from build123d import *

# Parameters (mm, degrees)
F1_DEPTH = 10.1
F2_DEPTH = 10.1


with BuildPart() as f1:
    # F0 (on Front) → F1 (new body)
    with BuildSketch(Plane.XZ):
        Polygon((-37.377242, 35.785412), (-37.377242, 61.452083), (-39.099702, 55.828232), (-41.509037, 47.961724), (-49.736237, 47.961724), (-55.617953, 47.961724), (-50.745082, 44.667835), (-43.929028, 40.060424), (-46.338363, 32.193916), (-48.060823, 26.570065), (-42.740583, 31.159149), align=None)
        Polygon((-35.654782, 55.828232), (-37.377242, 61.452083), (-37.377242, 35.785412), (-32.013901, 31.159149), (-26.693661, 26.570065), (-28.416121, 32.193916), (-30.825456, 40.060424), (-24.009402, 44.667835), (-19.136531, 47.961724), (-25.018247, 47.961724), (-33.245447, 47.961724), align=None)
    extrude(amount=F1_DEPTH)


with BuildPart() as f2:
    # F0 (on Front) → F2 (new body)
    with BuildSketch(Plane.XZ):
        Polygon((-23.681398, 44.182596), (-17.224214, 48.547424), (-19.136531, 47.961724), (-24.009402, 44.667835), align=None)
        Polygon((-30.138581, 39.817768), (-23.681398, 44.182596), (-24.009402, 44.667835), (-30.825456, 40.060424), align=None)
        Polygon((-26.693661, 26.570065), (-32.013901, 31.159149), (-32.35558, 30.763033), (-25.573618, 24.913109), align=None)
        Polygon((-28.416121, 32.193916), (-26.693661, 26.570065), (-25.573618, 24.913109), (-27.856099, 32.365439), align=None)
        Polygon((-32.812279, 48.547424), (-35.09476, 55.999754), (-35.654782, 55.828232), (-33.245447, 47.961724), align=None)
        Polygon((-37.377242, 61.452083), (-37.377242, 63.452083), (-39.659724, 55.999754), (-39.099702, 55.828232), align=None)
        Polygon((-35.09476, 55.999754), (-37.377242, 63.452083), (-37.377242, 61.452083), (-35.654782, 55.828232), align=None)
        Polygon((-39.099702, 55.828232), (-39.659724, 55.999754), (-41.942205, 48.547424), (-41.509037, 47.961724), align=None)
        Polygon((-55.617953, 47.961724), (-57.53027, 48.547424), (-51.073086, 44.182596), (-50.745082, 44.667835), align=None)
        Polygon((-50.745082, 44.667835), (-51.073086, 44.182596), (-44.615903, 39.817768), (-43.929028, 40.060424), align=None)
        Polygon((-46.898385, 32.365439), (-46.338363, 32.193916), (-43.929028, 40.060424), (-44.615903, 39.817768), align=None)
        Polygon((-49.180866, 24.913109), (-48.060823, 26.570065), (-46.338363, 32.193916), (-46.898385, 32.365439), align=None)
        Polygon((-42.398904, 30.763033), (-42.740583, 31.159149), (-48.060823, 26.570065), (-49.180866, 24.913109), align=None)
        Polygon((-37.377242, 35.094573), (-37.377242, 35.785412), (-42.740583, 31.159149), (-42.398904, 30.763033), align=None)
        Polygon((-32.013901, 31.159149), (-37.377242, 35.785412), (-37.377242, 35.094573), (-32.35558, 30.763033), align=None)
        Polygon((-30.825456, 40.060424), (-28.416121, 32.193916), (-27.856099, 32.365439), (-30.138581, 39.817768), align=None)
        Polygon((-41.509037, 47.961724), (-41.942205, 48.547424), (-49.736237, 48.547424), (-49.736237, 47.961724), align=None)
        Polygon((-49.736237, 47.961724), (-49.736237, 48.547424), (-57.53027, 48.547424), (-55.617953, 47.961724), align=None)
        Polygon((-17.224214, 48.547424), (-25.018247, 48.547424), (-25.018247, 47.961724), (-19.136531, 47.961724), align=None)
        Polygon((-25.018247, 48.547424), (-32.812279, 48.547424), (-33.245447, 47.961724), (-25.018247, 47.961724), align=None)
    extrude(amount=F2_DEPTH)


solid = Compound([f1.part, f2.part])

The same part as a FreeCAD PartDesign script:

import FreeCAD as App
import Part
import Sketcher
Q = App.Units.Quantity

doc = App.newDocument("Part")
body = doc.addObject("PartDesign::Body", "Body")

sketch1 = body.newObject("Sketcher::SketchObject", "Sketch")
sketch1.AttachmentSupport = (doc.getObject("XZ_Plane"), [""])
sketch1.MapMode = "FlatFace"
sketch1.addGeometry([
    Part.LineSegment(App.Vector(-37, 61, 0), App.Vector(-39, 56, 0)),
    Part.LineSegment(App.Vector(-39, 56, 0), App.Vector(-42, 48, 0)),
    Part.LineSegment(App.Vector(-42, 48, 0), App.Vector(-56, 48, 0)),
    Part.LineSegment(App.Vector(-56, 48, 0), App.Vector(-51, 45, 0)),
    Part.LineSegment(App.Vector(-51, 45, 0), App.Vector(-44, 40, 0)),
    Part.LineSegment(App.Vector(-44, 40, 0), App.Vector(-46, 32, 0)),
    Part.LineSegment(App.Vector(-46, 32, 0), App.Vector(-48, 27, 0)),
    Part.LineSegment(App.Vector(-48, 27, 0), App.Vector(-43, 31, 0)),
    Part.LineSegment(App.Vector(-43, 31, 0), App.Vector(-37, 36, 0)),
    Part.LineSegment(App.Vector(-37, 36, 0), App.Vector(-32, 31, 0)),
    Part.LineSegment(App.Vector(-32, 31, 0), App.Vector(-27, 27, 0)),
    Part.LineSegment(App.Vector(-27, 27, 0), App.Vector(-28, 32, 0)),
    Part.LineSegment(App.Vector(-28, 32, 0), App.Vector(-31, 40, 0)),
    Part.LineSegment(App.Vector(-31, 40, 0), App.Vector(-24, 45, 0)),
    Part.LineSegment(App.Vector(-24, 45, 0), App.Vector(-19, 48, 0)),
    Part.LineSegment(App.Vector(-19, 48, 0), App.Vector(-33, 48, 0)),
    Part.LineSegment(App.Vector(-33, 48, 0), App.Vector(-36, 56, 0)),
    Part.LineSegment(App.Vector(-36, 56, 0), App.Vector(-37, 61, 0)),
], False)
sketch1.addConstraint([
    Sketcher.Constraint("Coincident", 0, 2, 1, 1),
    Sketcher.Constraint("Coincident", 1, 2, 2, 1),
    Sketcher.Constraint("Coincident", 2, 2, 3, 1),
    Sketcher.Constraint("Coincident", 3, 2, 4, 1),
    Sketcher.Constraint("Coincident", 4, 2, 5, 1),
    Sketcher.Constraint("Coincident", 5, 2, 6, 1),
    Sketcher.Constraint("Coincident", 6, 2, 7, 1),
    Sketcher.Constraint("Coincident", 7, 2, 8, 1),
    Sketcher.Constraint("Coincident", 8, 2, 9, 1),
    Sketcher.Constraint("Coincident", 9, 2, 10, 1),
    Sketcher.Constraint("Coincident", 10, 2, 11, 1),
    Sketcher.Constraint("Coincident", 11, 2, 12, 1),
    Sketcher.Constraint("Coincident", 12, 2, 13, 1),
    Sketcher.Constraint("Coincident", 13, 2, 14, 1),
    Sketcher.Constraint("Coincident", 14, 2, 15, 1),
    Sketcher.Constraint("Coincident", 15, 2, 16, 1),
    Sketcher.Constraint("Coincident", 16, 2, 17, 1),
    Sketcher.Constraint("Coincident", 17, 2, 0, 1),
    Sketcher.Constraint("Horizontal", 2),
    Sketcher.Constraint("Horizontal", 15),
    Sketcher.Constraint("Parallel", 0, 1),
    Sketcher.Constraint("Parallel", 3, 4),
    Sketcher.Constraint("Parallel", 1, 5),
    Sketcher.Constraint("Parallel", 5, 6),
    Sketcher.Constraint("Parallel", 7, 8),
    Sketcher.Constraint("Parallel", 9, 10),
    Sketcher.Constraint("Parallel", 11, 12),
    Sketcher.Constraint("Parallel", 13, 14),
    Sketcher.Constraint("Parallel", 12, 16),
    Sketcher.Constraint("Parallel", 16, 17),
    Sketcher.Constraint("Horizontal", 7, 2, 9, 2),
    Sketcher.Constraint("Horizontal", 6, 2, 10, 2),
    Sketcher.Constraint("Horizontal", 5, 2, 11, 2),
    Sketcher.Constraint("Horizontal", 4, 2, 12, 2),
    Sketcher.Constraint("Horizontal", 3, 2, 13, 2),
    Sketcher.Constraint("Horizontal", 2, 2, 14, 2),
    Sketcher.Constraint("Horizontal", 0, 2, 16, 2),
    Sketcher.Constraint("Vertical", 8, 2, 17, 2),
    Sketcher.Constraint("Equal", 2, 15),
    Sketcher.Constraint("Equal", 0, 3),
    Sketcher.Constraint("Equal", 1, 4),
    Sketcher.Constraint("Equal", 4, 5),
    Sketcher.Constraint("Equal", 3, 6),
    Sketcher.Constraint("Equal", 8, 9),
    Sketcher.Constraint("Equal", 6, 11),
    Sketcher.Constraint("Distance", 1, Q("8.227201 mm")),
    Sketcher.Constraint("DistanceX", 9, 2, -1, 1, Q("32.013901 mm")),
    Sketcher.Constraint("DistanceY", 4, 2, 1, 2, Q("7.9013 mm")),
    Sketcher.Constraint("DistanceX", 3, 2, 7, 2, Q("8.004499 mm")),
    Sketcher.Constraint("Distance", 8, Q("7.082919 mm")),
    Sketcher.Constraint("DistanceX", 2, 2, 2, 1, Q("14.108916 mm")),
    Sketcher.Constraint("DistanceX", 3, 2, -1, 1, Q("50.745082 mm")),
    Sketcher.Constraint("DistanceX", 4, 2, -1, 1, Q("43.929028 mm")),
    Sketcher.Constraint("DistanceY", -1, 1, 7, 2, Q("31.159149 mm")),
])
pad1 = body.newObject("PartDesign::Pad", "Pad")
pad1.Profile = sketch1
pad1.Length = 10.1
body2 = doc.addObject("PartDesign::Body", "Body001")

sketch2 = body2.newObject("Sketcher::SketchObject", "Sketch001")
sketch2.AttachmentSupport = (doc.getObject("XZ_Plane001"), [""])
sketch2.MapMode = "FlatFace"
sketch2.addGeometry([
    Part.LineSegment(App.Vector(-24, 44, 0), App.Vector(-17, 49, 0)),
    Part.LineSegment(App.Vector(-17, 49, 0), App.Vector(-33, 49, 0)),
    Part.LineSegment(App.Vector(-33, 49, 0), App.Vector(-35, 56, 0)),
    Part.LineSegment(App.Vector(-35, 56, 0), App.Vector(-37, 63, 0)),
    Part.LineSegment(App.Vector(-37, 63, 0), App.Vector(-40, 56, 0)),
    Part.LineSegment(App.Vector(-40, 56, 0), App.Vector(-42, 49, 0)),
    Part.LineSegment(App.Vector(-42, 49, 0), App.Vector(-58, 49, 0)),
    Part.LineSegment(App.Vector(-58, 49, 0), App.Vector(-51, 44, 0)),
    Part.LineSegment(App.Vector(-51, 44, 0), App.Vector(-45, 40, 0)),
    Part.LineSegment(App.Vector(-45, 40, 0), App.Vector(-47, 32, 0)),
    Part.LineSegment(App.Vector(-47, 32, 0), App.Vector(-49, 25, 0)),
    Part.LineSegment(App.Vector(-49, 25, 0), App.Vector(-42, 31, 0)),
    Part.LineSegment(App.Vector(-42, 31, 0), App.Vector(-37, 35, 0)),
    Part.LineSegment(App.Vector(-37, 35, 0), App.Vector(-32, 31, 0)),
    Part.LineSegment(App.Vector(-32, 31, 0), App.Vector(-26, 25, 0)),
    Part.LineSegment(App.Vector(-26, 25, 0), App.Vector(-28, 32, 0)),
    Part.LineSegment(App.Vector(-28, 32, 0), App.Vector(-30, 40, 0)),
    Part.LineSegment(App.Vector(-30, 40, 0), App.Vector(-24, 44, 0)),
    Part.LineSegment(App.Vector(-19, 48, 0), App.Vector(-24, 45, 0)),
    Part.LineSegment(App.Vector(-24, 45, 0), App.Vector(-31, 40, 0)),
    Part.LineSegment(App.Vector(-31, 40, 0), App.Vector(-28, 32, 0)),
    Part.LineSegment(App.Vector(-28, 32, 0), App.Vector(-27, 27, 0)),
    Part.LineSegment(App.Vector(-27, 27, 0), App.Vector(-32, 31, 0)),
    Part.LineSegment(App.Vector(-32, 31, 0), App.Vector(-37, 36, 0)),
    Part.LineSegment(App.Vector(-37, 36, 0), App.Vector(-43, 31, 0)),
    Part.LineSegment(App.Vector(-43, 31, 0), App.Vector(-48, 27, 0)),
    Part.LineSegment(App.Vector(-48, 27, 0), App.Vector(-46, 32, 0)),
    Part.LineSegment(App.Vector(-46, 32, 0), App.Vector(-44, 40, 0)),
    Part.LineSegment(App.Vector(-44, 40, 0), App.Vector(-51, 45, 0)),
    Part.LineSegment(App.Vector(-51, 45, 0), App.Vector(-56, 48, 0)),
    Part.LineSegment(App.Vector(-56, 48, 0), App.Vector(-42, 48, 0)),
    Part.LineSegment(App.Vector(-42, 48, 0), App.Vector(-39, 56, 0)),
    Part.LineSegment(App.Vector(-39, 56, 0), App.Vector(-37, 61, 0)),
    Part.LineSegment(App.Vector(-37, 61, 0), App.Vector(-36, 56, 0)),
    Part.LineSegment(App.Vector(-36, 56, 0), App.Vector(-33, 48, 0)),
    Part.LineSegment(App.Vector(-33, 48, 0), App.Vector(-19, 48, 0)),
], False)
sketch2.addConstraint([
    Sketcher.Constraint("Coincident", 0, 2, 1, 1),
    Sketcher.Constraint("Coincident", 1, 2, 2, 1),
    Sketcher.Constraint("Coincident", 2, 2, 3, 1),
    Sketcher.Constraint("Coincident", 3, 2, 4, 1),
    Sketcher.Constraint("Coincident", 4, 2, 5, 1),
    Sketcher.Constraint("Coincident", 5, 2, 6, 1),
    Sketcher.Constraint("Coincident", 6, 2, 7, 1),
    Sketcher.Constraint("Coincident", 7, 2, 8, 1),
    Sketcher.Constraint("Coincident", 8, 2, 9, 1),
    Sketcher.Constraint("Coincident", 9, 2, 10, 1),
    Sketcher.Constraint("Coincident", 10, 2, 11, 1),
    Sketcher.Constraint("Coincident", 11, 2, 12, 1),
    Sketcher.Constraint("Coincident", 12, 2, 13, 1),
    Sketcher.Constraint("Coincident", 13, 2, 14, 1),
    Sketcher.Constraint("Coincident", 14, 2, 15, 1),
    Sketcher.Constraint("Coincident", 15, 2, 16, 1),
    Sketcher.Constraint("Coincident", 16, 2, 17, 1),
    Sketcher.Constraint("Coincident", 17, 2, 0, 1),
    Sketcher.Constraint("Coincident", 18, 2, 19, 1),
    Sketcher.Constraint("Coincident", 19, 2, 20, 1),
    Sketcher.Constraint("Coincident", 20, 2, 21, 1),
    Sketcher.Constraint("Coincident", 21, 2, 22, 1),
    Sketcher.Constraint("Coincident", 22, 2, 23, 1),
    Sketcher.Constraint("Coincident", 23, 2, 24, 1),
    Sketcher.Constraint("Coincident", 24, 2, 25, 1),
    Sketcher.Constraint("Coincident", 25, 2, 26, 1),
    Sketcher.Constraint("Coincident", 26, 2, 27, 1),
    Sketcher.Constraint("Coincident", 27, 2, 28, 1),
    Sketcher.Constraint("Coincident", 28, 2, 29, 1),
    Sketcher.Constraint("Coincident", 29, 2, 30, 1),
    Sketcher.Constraint("Coincident", 30, 2, 31, 1),
    Sketcher.Constraint("Coincident", 31, 2, 32, 1),
    Sketcher.Constraint("Coincident", 32, 2, 33, 1),
    Sketcher.Constraint("Coincident", 33, 2, 34, 1),
    Sketcher.Constraint("Coincident", 34, 2, 35, 1),
    Sketcher.Constraint("Coincident", 35, 2, 18, 1),
    Sketcher.Constraint("Horizontal", 1),
    Sketcher.Constraint("Horizontal", 6),
    Sketcher.Constraint("Horizontal", 30),
    Sketcher.Constraint("Horizontal", 35),
    Sketcher.Constraint("Parallel", 2, 3),
    Sketcher.Constraint("Parallel", 4, 5),
    Sketcher.Constraint("Parallel", 7, 8),
    Sketcher.Constraint("Parallel", 5, 9),
    Sketcher.Constraint("Parallel", 9, 10),
    Sketcher.Constraint("Parallel", 11, 12),
    Sketcher.Constraint("Parallel", 13, 14),
    Sketcher.Constraint("Parallel", 3, 15),
    Sketcher.Constraint("Parallel", 15, 16),
    Sketcher.Constraint("Parallel", 0, 17),
    Sketcher.Constraint("Parallel", 17, 18),
    Sketcher.Constraint("Parallel", 18, 19),
    Sketcher.Constraint("Parallel", 16, 20),
    Sketcher.Constraint("Parallel", 20, 21),
    Sketcher.Constraint("Parallel", 14, 22),
    Sketcher.Constraint("Parallel", 22, 23),
    Sketcher.Constraint("Parallel", 12, 24),
    Sketcher.Constraint("Parallel", 24, 25),
    Sketcher.Constraint("Parallel", 10, 26),
    Sketcher.Constraint("Parallel", 26, 27),
    Sketcher.Constraint("Parallel", 8, 28),
    Sketcher.Constraint("Parallel", 28, 29),
    Sketcher.Constraint("Parallel", 27, 31),
    Sketcher.Constraint("Parallel", 31, 32),
    Sketcher.Constraint("Parallel", 21, 33),
    Sketcher.Constraint("Parallel", 33, 34),
    Sketcher.Constraint("Horizontal", 2, 2, 4, 2),
    Sketcher.Constraint("Horizontal", 1, 2, 5, 2),
    Sketcher.Constraint("Horizontal", 11, 2, 13, 2),
    Sketcher.Constraint("Horizontal", 10, 2, 14, 2),
    Sketcher.Constraint("Horizontal", 9, 2, 15, 2),
    Sketcher.Constraint("Horizontal", 8, 2, 16, 2),
    Sketcher.Constraint("Horizontal", 7, 2, 17, 2),
    Sketcher.Constraint("Horizontal", 22, 2, 24, 2),
    Sketcher.Constraint("Horizontal", 21, 2, 25, 2),
    Sketcher.Constraint("Horizontal", 20, 2, 26, 2),
    Sketcher.Constraint("Horizontal", 19, 2, 27, 2),
    Sketcher.Constraint("Horizontal", 18, 2, 28, 2),
    Sketcher.Constraint("Horizontal", 31, 2, 33, 2),
    Sketcher.Constraint("Horizontal", 30, 2, 34, 2),
    Sketcher.Constraint("Vertical", 3, 2, 12, 2),
    Sketcher.Constraint("Vertical", 12, 2, 23, 2),
    Sketcher.Constraint("Vertical", 23, 2, 32, 2),
    Sketcher.Constraint("Equal", 1, 6),
    Sketcher.Constraint("Equal", 0, 2),
    Sketcher.Constraint("Equal", 2, 3),
    Sketcher.Constraint("Equal", 3, 4),
    Sketcher.Constraint("Equal", 5, 7),
    Sketcher.Constraint("Equal", 7, 8),
    Sketcher.Constraint("Equal", 8, 9),
    Sketcher.Constraint("Equal", 9, 10),
    Sketcher.Constraint("Equal", 19, 20),
    Sketcher.Constraint("Equal", 18, 21),
    Sketcher.Constraint("Equal", 28, 31),
    Sketcher.Constraint("Equal", 29, 32),
    Sketcher.Constraint("DistanceY", 32, 2, 3, 2, Q("2 mm")),
    Sketcher.Constraint("DistanceX", 8, 2, 11, 2, Q("2.216999 mm")),
    Sketcher.Constraint("Distance", 19, Q("8.227201 mm")),
    Sketcher.Constraint("DistanceX", 15, 2, -1, 1, Q("27.856099 mm")),
    Sketcher.Constraint("DistanceX", 17, 2, -1, 1, Q("23.681398 mm")),
    Sketcher.Constraint("DistanceX", 22, 2, -1, 1, Q("32.013901 mm")),
    Sketcher.Constraint("DistanceX", 8, 2, 5, 2, Q("2.673698 mm")),
    Sketcher.Constraint("DistanceY", 29, 2, 6, 2, Q("0.5857 mm")),
    Sketcher.Constraint("DistanceY", 27, 2, 30, 2, Q("7.9013 mm")),
    Sketcher.Constraint("Distance", 3, Q("7.794032 mm")),
    Sketcher.Constraint("Distance", 12, Q("6.631691 mm")),
    Sketcher.Constraint("DistanceX", 30, 1, 30, 2, Q("14.108916 mm")),
    Sketcher.Constraint("DistanceY", -1, 1, 9, 2, Q("32.365439 mm")),
])
pad2 = body2.newObject("PartDesign::Pad", "Pad001")
pad2.Profile = sketch2
pad2.Length = 10.1

doc.recompute()
